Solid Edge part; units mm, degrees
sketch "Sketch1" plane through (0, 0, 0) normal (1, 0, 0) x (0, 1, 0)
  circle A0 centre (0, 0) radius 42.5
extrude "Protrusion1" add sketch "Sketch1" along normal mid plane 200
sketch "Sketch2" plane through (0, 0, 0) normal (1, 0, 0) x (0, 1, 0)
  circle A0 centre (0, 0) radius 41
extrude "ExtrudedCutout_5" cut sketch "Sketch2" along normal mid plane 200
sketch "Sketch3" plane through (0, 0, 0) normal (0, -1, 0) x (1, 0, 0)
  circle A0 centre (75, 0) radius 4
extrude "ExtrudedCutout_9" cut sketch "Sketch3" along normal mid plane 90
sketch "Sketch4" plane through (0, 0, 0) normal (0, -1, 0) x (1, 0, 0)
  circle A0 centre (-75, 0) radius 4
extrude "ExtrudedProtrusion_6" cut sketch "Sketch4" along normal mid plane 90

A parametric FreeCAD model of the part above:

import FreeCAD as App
import Part
import Sketcher

V = App.Vector
Q = App.Units.Quantity

doc = App.newDocument("Part")
params = doc.addObject("Spreadsheet::Sheet", "Params")
for row, (alias, value) in enumerate([
    ("sketch1_diameter", "85 mm"),
    ("pad1_length", "200 mm"),
    ("sketch2_diameter", "82 mm"),
    ("pocket1_length", "200 mm"),
    ("sketch3_diameter", "8 mm"),
    ("pocket2_length", "90 mm"),
    ("sketch4_diameter", "8 mm"),
    ("pocket3_length", "90 mm"),
], start=1):
    params.set(f"A{row}", alias)
    params.set(f"B{row}", "=" + value)
    params.setAlias(f"B{row}", alias)

body = doc.addObject("PartDesign::Body", "Body")

# Sketch on YZ plane
sketch1 = body.newObject("Sketcher::SketchObject", "Sketch")
sketch1.AttachmentSupport = (doc.getObject("YZ_Plane"), [""])
sketch1.MapMode = "FlatFace"
sketch1.addGeometry(Part.Circle(V(0, 0, 0), V(0, 0, 1), 42), False)
sketch1.addConstraint([
    Sketcher.Constraint("Coincident", 0, 3, -1, 1),
    Sketcher.Constraint("Diameter", 0, Q("85 mm")),
])
sketch1.setExpression("Constraints[1]", "Params.sketch1_diameter")
pad1 = body.newObject("PartDesign::Pad", "Pad")
pad1.Profile = sketch1
pad1.setExpression("Length", "Params.pad1_length")
pad1.Midplane = True

# Sketch on YZ plane
sketch2 = body.newObject("Sketcher::SketchObject", "Sketch001")
sketch2.AttachmentSupport = (doc.getObject("YZ_Plane"), [""])
sketch2.MapMode = "FlatFace"
sketch2.addGeometry(Part.Circle(V(0, 0, 0), V(0, 0, 1), 41), False)
sketch2.addConstraint([
    Sketcher.Constraint("Coincident", 0, 3, -1, 1),
    Sketcher.Constraint("Diameter", 0, Q("82 mm")),
])
sketch2.setExpression("Constraints[1]", "Params.sketch2_diameter")
pocket1 = body.newObject("PartDesign::Pocket", "Pocket")
pocket1.Profile = sketch2
pocket1.setExpression("Length", "Params.pocket1_length")
pocket1.Midplane = True

# Sketch on XZ plane
sketch3 = body.newObject("Sketcher::SketchObject", "Sketch002")
sketch3.AttachmentSupport = (doc.getObject("XZ_Plane"), [""])
sketch3.MapMode = "FlatFace"
sketch3.addGeometry(Part.Circle(V(75, 0, 0), V(0, 0, 1), 4), False)
sketch3.addConstraint([
    Sketcher.Constraint("PointOnObject", 0, 3, -1),
    Sketcher.Constraint("Diameter", 0, Q("8 mm")),
    Sketcher.Constraint("DistanceX", -1, 1, 0, 3, Q("75 mm")),
])
sketch3.setExpression("Constraints[1]", "Params.sketch3_diameter")
pocket2 = body.newObject("PartDesign::Pocket", "Pocket001")
pocket2.Profile = sketch3
pocket2.setExpression("Length", "Params.pocket2_length")
pocket2.Midplane = True

# Sketch on XZ plane
sketch4 = body.newObject("Sketcher::SketchObject", "Sketch003")
sketch4.AttachmentSupport = (doc.getObject("XZ_Plane"), [""])
sketch4.MapMode = "FlatFace"
sketch4.addGeometry(Part.Circle(V(-75, 0, 0), V(0, 0, 1), 4), False)
sketch4.addConstraint([
    Sketcher.Constraint("PointOnObject", 0, 3, -1),
    Sketcher.Constraint("Diameter", 0, Q("8 mm")),
    Sketcher.Constraint("DistanceX", 0, 3, -1, 1, Q("75 mm")),
])
sketch4.setExpression("Constraints[1]", "Params.sketch4_diameter")
pocket3 = body.newObject("PartDesign::Pocket", "Pocket002")
pocket3.Profile = sketch4
pocket3.setExpression("Length", "Params.pocket3_length")
pocket3.Midplane = True

doc.recompute()
